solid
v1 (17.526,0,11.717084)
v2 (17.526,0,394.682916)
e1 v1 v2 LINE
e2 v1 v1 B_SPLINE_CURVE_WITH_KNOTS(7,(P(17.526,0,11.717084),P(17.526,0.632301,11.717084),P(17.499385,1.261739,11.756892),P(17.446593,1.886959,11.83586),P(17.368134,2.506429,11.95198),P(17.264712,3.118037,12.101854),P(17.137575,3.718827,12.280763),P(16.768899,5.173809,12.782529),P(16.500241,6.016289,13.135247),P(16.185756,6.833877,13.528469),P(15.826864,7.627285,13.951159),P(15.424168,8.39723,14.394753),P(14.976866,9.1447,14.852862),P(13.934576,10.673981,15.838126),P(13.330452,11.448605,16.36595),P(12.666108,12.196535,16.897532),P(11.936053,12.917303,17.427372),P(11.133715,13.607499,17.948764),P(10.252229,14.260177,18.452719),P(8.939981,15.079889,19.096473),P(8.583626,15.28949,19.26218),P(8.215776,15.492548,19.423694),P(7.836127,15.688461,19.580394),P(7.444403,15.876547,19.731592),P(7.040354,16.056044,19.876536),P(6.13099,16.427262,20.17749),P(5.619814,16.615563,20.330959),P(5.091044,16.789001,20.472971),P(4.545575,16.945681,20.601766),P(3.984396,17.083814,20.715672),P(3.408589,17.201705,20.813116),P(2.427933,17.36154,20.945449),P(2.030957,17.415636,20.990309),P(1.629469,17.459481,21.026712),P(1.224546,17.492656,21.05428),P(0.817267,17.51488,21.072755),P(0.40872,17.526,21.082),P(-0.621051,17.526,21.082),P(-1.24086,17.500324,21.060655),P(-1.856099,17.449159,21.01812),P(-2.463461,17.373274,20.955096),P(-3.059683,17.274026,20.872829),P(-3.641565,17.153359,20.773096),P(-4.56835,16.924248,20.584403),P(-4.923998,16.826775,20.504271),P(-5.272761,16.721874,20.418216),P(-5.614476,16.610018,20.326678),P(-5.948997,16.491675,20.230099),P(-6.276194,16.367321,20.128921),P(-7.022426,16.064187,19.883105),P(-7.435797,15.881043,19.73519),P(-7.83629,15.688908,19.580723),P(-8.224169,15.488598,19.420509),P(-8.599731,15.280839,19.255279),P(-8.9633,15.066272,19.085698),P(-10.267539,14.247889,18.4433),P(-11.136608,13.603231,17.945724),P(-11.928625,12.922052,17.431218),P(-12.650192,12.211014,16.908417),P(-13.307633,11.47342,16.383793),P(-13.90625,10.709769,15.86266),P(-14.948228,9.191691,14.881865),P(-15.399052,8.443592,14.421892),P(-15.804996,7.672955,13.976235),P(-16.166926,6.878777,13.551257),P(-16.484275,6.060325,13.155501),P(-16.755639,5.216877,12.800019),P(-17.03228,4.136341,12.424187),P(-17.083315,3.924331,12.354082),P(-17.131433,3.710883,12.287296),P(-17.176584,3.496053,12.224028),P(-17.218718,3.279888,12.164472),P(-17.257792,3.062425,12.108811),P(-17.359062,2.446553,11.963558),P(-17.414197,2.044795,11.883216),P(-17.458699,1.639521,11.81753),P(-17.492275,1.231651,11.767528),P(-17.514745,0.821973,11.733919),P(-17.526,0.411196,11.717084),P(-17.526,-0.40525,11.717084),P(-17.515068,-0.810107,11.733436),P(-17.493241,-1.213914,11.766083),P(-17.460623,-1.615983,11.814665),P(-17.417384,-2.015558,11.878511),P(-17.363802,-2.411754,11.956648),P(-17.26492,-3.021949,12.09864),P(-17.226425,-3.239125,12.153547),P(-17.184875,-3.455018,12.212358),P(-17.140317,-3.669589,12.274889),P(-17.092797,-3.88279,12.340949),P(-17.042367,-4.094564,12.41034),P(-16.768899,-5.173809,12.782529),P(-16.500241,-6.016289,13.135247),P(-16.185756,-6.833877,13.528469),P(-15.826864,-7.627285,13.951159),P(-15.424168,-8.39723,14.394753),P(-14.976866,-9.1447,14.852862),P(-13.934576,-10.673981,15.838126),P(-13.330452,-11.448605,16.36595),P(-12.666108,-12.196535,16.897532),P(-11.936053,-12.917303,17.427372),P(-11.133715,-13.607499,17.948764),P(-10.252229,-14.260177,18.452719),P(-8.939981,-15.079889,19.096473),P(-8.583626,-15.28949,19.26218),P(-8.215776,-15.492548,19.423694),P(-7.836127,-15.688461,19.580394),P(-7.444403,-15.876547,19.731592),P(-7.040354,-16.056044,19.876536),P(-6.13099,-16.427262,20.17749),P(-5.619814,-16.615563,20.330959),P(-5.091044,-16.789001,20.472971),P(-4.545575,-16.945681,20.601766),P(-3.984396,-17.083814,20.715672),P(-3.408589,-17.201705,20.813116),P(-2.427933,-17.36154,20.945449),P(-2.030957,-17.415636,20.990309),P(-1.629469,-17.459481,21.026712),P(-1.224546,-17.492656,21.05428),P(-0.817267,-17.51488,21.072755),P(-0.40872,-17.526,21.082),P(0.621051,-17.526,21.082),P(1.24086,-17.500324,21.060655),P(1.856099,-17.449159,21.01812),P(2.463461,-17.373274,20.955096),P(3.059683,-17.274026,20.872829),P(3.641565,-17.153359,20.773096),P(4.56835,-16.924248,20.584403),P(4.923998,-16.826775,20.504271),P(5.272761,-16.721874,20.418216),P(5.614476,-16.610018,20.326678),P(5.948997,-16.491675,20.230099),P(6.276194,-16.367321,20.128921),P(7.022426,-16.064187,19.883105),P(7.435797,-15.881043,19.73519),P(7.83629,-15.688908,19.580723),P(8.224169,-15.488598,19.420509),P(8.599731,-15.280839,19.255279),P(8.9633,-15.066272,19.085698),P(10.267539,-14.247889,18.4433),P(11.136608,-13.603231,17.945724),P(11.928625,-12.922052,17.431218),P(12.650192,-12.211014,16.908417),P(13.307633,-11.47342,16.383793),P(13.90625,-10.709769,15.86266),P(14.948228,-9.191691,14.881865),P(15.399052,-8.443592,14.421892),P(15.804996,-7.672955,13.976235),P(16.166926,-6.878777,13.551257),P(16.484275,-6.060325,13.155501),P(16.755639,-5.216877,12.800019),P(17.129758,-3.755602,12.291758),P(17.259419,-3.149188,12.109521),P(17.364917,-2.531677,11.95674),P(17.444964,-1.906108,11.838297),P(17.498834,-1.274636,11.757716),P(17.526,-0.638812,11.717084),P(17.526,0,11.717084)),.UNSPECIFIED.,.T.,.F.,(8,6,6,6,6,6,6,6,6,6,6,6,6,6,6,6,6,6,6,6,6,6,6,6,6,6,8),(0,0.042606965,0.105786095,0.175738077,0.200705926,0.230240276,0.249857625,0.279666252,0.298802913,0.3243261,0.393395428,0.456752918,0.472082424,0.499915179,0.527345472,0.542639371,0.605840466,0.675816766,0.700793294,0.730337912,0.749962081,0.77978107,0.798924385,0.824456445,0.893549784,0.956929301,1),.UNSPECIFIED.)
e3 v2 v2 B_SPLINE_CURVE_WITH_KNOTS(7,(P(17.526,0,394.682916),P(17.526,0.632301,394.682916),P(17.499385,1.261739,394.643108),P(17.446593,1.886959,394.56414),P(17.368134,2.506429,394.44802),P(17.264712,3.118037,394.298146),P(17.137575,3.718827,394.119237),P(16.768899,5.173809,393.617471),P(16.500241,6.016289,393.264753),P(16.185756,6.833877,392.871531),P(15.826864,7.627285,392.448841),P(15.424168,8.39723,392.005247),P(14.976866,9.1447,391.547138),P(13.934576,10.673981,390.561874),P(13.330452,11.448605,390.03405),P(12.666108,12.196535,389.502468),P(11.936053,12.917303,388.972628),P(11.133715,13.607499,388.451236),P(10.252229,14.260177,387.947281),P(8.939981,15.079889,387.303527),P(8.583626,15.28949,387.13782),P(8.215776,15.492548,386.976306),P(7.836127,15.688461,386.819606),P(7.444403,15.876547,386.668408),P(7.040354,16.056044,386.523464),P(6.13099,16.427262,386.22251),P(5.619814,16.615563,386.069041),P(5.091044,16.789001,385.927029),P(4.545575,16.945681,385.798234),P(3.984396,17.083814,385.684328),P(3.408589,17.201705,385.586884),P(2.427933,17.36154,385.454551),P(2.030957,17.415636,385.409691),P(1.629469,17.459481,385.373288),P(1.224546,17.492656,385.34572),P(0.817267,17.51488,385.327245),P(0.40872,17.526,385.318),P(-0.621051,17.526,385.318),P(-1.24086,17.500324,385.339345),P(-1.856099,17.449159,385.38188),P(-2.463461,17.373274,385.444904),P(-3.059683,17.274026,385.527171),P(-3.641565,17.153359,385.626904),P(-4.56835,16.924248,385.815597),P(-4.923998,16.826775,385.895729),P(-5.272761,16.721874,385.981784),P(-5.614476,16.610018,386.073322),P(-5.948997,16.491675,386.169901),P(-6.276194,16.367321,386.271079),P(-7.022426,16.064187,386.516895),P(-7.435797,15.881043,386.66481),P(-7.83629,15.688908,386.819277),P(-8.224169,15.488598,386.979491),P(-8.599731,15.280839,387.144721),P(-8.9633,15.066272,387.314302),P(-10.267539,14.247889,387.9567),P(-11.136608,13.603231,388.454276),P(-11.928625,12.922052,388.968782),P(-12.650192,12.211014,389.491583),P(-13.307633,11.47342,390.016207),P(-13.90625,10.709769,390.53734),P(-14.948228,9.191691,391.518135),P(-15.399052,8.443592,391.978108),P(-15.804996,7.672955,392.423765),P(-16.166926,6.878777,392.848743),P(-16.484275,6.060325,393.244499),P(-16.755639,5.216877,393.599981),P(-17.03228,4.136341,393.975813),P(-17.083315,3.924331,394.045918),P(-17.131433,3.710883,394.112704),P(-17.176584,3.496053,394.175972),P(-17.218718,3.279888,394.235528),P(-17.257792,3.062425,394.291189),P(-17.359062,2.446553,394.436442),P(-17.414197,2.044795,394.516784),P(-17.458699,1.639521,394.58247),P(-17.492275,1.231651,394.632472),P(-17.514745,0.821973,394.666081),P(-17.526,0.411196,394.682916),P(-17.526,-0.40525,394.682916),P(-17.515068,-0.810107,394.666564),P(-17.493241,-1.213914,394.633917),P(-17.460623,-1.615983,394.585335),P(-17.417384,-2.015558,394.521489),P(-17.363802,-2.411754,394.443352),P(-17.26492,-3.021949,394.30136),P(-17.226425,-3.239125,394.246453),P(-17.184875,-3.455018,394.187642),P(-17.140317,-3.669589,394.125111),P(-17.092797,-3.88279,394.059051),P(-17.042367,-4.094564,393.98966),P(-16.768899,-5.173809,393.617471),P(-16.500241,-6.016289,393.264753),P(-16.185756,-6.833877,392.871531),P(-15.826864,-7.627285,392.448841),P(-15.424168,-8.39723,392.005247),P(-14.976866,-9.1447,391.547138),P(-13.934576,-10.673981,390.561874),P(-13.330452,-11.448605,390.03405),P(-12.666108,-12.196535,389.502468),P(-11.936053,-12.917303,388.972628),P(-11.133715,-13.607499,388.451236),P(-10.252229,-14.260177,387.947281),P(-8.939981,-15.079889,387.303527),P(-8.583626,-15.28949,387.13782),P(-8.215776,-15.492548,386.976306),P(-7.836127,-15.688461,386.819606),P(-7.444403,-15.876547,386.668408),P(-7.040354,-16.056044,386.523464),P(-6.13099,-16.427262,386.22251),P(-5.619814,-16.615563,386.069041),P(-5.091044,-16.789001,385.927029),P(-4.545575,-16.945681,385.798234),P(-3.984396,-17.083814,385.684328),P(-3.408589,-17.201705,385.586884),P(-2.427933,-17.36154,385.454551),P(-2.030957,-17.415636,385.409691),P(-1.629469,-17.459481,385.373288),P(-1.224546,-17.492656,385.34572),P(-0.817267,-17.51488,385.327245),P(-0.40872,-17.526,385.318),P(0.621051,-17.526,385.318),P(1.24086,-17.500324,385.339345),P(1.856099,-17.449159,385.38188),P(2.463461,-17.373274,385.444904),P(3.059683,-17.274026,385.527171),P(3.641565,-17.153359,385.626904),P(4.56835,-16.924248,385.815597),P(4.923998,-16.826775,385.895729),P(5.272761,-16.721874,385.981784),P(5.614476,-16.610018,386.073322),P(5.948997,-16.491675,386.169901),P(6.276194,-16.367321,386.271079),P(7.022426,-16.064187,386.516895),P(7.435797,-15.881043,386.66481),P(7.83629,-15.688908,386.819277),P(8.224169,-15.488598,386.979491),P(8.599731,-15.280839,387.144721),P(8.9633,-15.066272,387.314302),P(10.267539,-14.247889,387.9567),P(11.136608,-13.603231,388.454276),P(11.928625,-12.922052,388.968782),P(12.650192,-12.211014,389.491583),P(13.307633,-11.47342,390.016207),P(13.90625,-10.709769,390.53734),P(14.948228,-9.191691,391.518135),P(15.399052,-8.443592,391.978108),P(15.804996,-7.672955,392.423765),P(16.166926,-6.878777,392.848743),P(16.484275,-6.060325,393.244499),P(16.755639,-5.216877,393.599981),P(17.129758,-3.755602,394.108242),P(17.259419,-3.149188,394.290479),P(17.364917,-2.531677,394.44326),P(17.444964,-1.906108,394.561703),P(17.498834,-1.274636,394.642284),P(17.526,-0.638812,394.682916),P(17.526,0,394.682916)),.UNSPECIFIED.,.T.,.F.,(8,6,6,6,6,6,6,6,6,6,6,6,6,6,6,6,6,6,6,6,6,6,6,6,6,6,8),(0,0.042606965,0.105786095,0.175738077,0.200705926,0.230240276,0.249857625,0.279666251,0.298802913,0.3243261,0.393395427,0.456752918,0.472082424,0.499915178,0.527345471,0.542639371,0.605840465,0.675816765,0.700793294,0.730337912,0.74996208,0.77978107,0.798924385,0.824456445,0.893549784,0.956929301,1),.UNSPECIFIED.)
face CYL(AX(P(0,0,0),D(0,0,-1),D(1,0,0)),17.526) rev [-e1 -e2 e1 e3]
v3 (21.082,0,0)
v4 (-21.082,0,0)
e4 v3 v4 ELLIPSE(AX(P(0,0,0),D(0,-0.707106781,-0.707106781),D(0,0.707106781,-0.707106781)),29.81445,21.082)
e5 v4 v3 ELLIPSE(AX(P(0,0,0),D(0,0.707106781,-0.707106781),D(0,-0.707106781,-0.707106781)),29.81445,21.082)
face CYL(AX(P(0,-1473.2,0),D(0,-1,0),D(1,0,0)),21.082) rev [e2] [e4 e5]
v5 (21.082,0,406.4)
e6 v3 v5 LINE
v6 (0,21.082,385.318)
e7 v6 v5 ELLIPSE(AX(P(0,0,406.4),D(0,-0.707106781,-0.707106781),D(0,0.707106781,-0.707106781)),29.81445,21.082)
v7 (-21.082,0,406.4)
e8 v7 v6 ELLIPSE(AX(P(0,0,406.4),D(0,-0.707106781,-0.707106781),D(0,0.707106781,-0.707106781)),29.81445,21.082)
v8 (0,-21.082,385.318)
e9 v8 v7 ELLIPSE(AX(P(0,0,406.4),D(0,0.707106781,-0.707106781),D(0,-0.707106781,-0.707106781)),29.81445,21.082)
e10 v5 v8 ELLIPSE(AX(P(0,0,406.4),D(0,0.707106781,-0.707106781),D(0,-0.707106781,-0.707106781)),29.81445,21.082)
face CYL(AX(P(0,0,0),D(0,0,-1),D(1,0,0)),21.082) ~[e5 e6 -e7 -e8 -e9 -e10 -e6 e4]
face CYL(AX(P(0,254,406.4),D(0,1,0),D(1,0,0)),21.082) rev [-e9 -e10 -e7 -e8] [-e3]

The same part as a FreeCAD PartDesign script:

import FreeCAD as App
import Part
import Sketcher
Q = App.Units.Quantity

doc = App.newDocument("Part")
params = doc.addObject("Spreadsheet::Sheet", "Params")
for row, (alias, value) in enumerate([
    ("sketch1_diameter", "1.66 in"),
    ("sketch1_diameter2", "1.38 in"),
    ("pad1_length", "16 in"),
    ("sketch2_diameter", "1.66 in"),
    ("pocket1_length", "68 in"),
    ("sketch3_diameter", "1.66 in"),
    ("pocket2_length", "68 in"),
], start=1):
    params.set(f"A{row}", alias)
    params.set(f"B{row}", "=" + value)
    params.setAlias(f"B{row}", alias)

body = doc.addObject("PartDesign::Body", "Body")

sketch1 = body.newObject("Sketcher::SketchObject", "Sketch")
sketch1.AttachmentSupport = (doc.getObject("XY_Plane"), [""])
sketch1.MapMode = "FlatFace"
sketch1.addGeometry([
    Part.Circle(App.Vector(0, 0, 0), App.Vector(0, 0, 1), 21.082),
    Part.Circle(App.Vector(0, 0, 0), App.Vector(0, 0, 1), 17.526),
], False)
sketch1.addConstraint([
    Sketcher.Constraint("Coincident", 0, 3, -1, 1),
    Sketcher.Constraint("Coincident", 1, 3, -1, 1),
    Sketcher.Constraint("Diameter", 0, Q("1.66 in")),
    Sketcher.Constraint("Diameter", 1, Q("1.38 in")),
])
sketch1.setExpression("Constraints[2]", "Params.sketch1_diameter")
sketch1.setExpression("Constraints[3]", "Params.sketch1_diameter2")
pad1 = body.newObject("PartDesign::Pad", "Pad")
pad1.Profile = sketch1
pad1.setExpression("Length", "Params.pad1_length")

sketch2 = body.newObject("Sketcher::SketchObject", "Sketch001")
sketch2.AttachmentSupport = (doc.getObject("XZ_Plane"), [""])
sketch2.MapMode = "FlatFace"
sketch2.AttachmentOffset = App.Placement(App.Vector(0, 0, -10 * 25.4), App.Rotation())
sketch2.addGeometry(Part.Circle(App.Vector(0, 406.4, 0), App.Vector(0, 0, 1), 21.082), False)
sketch2.addConstraint([
    Sketcher.Constraint("PointOnObject", 0, 3, -2),
    Sketcher.Constraint("Diameter", 0, Q("1.66 in")),
    Sketcher.Constraint("DistanceY", -1, 1, 0, 3, Q("16 in")),
])
sketch2.setExpression("Constraints[1]", "Params.sketch2_diameter")
pocket1 = body.newObject("PartDesign::Pocket", "Pocket")
pocket1.Profile = sketch2
pocket1.setExpression("Length", "Params.pocket1_length")
pocket1.Reversed = True

sketch3 = body.newObject("Sketcher::SketchObject", "Sketch002")
sketch3.AttachmentSupport = (doc.getObject("XZ_Plane"), [""])
sketch3.MapMode = "FlatFace"
sketch3.AttachmentOffset = App.Placement(App.Vector(0, 0, 58 * 25.4), App.Rotation())
sketch3.addGeometry(Part.Circle(App.Vector(0, 0, 0), App.Vector(0, 0, 1), 21.082), False)
sketch3.addConstraint([
    Sketcher.Constraint("Coincident", 0, 3, -1, 1),
    Sketcher.Constraint("Diameter", 0, Q("1.66 in")),
])
sketch3.setExpression("Constraints[1]", "Params.sketch3_diameter")
pocket2 = body.newObject("PartDesign::Pocket", "Pocket001")
pocket2.Profile = sketch3
pocket2.setExpression("Length", "Params.pocket2_length")

doc.recompute()
